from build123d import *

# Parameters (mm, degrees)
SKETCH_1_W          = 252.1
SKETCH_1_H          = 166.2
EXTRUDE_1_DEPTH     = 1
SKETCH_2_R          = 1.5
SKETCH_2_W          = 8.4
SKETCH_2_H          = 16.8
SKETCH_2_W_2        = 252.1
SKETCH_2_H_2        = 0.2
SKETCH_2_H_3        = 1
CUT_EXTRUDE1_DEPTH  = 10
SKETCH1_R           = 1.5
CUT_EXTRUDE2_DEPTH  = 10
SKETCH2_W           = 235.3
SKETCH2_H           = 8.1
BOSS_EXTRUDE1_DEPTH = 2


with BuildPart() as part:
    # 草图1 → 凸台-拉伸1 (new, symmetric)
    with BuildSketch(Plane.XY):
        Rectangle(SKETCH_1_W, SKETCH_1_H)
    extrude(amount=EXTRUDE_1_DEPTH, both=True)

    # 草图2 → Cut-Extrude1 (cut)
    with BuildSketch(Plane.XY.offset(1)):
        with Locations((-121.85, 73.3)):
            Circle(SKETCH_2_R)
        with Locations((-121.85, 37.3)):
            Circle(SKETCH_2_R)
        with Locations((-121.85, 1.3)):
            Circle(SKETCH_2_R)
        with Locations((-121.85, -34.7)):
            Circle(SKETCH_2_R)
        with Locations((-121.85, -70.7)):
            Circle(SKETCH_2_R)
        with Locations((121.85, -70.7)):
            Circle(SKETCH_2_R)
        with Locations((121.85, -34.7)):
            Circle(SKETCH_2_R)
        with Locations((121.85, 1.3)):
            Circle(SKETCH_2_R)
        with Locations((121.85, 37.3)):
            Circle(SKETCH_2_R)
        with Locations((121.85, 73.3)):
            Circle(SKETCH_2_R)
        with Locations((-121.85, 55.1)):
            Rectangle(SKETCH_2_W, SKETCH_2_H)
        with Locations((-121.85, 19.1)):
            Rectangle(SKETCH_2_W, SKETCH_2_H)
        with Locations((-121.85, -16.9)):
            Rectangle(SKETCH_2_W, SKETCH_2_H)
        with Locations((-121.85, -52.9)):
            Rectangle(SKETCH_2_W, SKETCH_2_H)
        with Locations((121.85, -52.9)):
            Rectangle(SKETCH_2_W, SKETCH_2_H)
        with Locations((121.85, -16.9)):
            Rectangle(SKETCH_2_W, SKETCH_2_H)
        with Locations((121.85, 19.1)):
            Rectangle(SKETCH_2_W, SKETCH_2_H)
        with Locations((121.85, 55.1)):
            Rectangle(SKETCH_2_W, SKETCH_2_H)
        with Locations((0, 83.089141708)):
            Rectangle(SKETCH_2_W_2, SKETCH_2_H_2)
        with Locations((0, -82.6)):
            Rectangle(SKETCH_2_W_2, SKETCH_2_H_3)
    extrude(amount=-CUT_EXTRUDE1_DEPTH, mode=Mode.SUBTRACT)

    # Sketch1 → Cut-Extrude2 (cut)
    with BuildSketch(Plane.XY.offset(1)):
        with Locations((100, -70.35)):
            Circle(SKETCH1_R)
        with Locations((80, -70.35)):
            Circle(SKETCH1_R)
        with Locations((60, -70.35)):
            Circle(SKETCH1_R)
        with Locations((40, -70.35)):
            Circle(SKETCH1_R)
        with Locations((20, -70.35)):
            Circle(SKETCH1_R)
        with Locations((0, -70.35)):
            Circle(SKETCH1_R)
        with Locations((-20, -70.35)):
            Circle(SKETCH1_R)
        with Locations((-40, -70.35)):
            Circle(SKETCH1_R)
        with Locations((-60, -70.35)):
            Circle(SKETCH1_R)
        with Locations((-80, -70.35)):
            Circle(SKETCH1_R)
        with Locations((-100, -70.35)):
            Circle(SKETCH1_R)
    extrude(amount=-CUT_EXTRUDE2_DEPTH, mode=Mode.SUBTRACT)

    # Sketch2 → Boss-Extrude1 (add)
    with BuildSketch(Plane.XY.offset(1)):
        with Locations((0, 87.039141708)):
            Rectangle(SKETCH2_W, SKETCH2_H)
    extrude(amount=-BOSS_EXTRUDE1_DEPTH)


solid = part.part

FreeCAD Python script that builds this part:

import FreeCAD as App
import Part
import Sketcher

V = App.Vector
Q = App.Units.Quantity


def add_polygon(sketch, points):
    """Adds a closed chain of lines whose ends are joined by coincident constraints."""
    first, n = sketch.GeometryCount, len(points)
    for a, b in zip(points, points[1:] + points[:1]):
        sketch.addGeometry(Part.LineSegment(App.Vector(*a, 0), App.Vector(*b, 0)), False)
    for i in range(n):
        sketch.addConstraint(Sketcher.Constraint("Coincident", first + i, 2, first + (i + 1) % n, 1))

doc = App.newDocument("Part")
body = doc.addObject("PartDesign::Body", "Body")

# Sketch on XY plane
sketch1 = doc.addObject("Sketcher::SketchObject", "Sketch")
body.addObject(sketch1)
sketch1.AttachmentSupport = (doc.XY_Plane, [""])
sketch1.MapMode = "FlatFace"
add_polygon(sketch1, [(-126.05, 83.1), (-126.05, -83.1), (126.05, -83.1), (126.05, 83.1)])  # lines 0-3
sketch1.addConstraint(Sketcher.Constraint("Vertical", 0))
sketch1.addConstraint(Sketcher.Constraint("Horizontal", 1))
sketch1.addConstraint(Sketcher.Constraint("Vertical", 2))
sketch1.addConstraint(Sketcher.Constraint("Horizontal", 3))
sketch1.addConstraint(Sketcher.Constraint("Symmetric", 0, 2, 2, 2, -1, 1))
sketch1.addConstraint(Sketcher.Constraint("DistanceX", 1, 1, 1, 2, Q("252.1 mm")))
sketch1.addConstraint(Sketcher.Constraint("DistanceY", 0, 2, 0, 1, Q("166.2 mm")))
pad1 = doc.addObject("PartDesign::Pad", "Pad")
body.addObject(pad1)
pad1.Profile = sketch1
pad1.Length = 2
pad1.Midplane = True

# Sketch on XY plane
sketch2 = doc.addObject("Sketcher::SketchObject", "Sketch001")
body.addObject(sketch2)
sketch2.AttachmentSupport = (doc.XY_Plane, [""])
sketch2.MapMode = "FlatFace"
sketch2.AttachmentOffset = App.Placement(V(0, 0, 1), App.Rotation())
sketch2.addGeometry(Part.Circle(V(-121.85, 73.3, 0), V(0, 0, 1), 1.5), False)  # 0
sketch2.addGeometry(Part.Circle(V(-121.85, 37.3, 0), V(0, 0, 1), 1.5), False)  # 1
sketch2.addGeometry(Part.Circle(V(-121.85, 1.3, 0), V(0, 0, 1), 1.5), False)  # 2
sketch2.addGeometry(Part.Circle(V(-121.85, -34.7, 0), V(0, 0, 1), 1.5), False)  # 3
sketch2.addGeometry(Part.Circle(V(-121.85, -70.7, 0), V(0, 0, 1), 1.5), False)  # 4
sketch2.addGeometry(Part.Circle(V(121.85, -70.7, 0), V(0, 0, 1), 1.5), False)  # 5
sketch2.addGeometry(Part.Circle(V(121.85, -34.7, 0), V(0, 0, 1), 1.5), False)  # 6
sketch2.addGeometry(Part.Circle(V(121.85, 1.3, 0), V(0, 0, 1), 1.5), False)  # 7
sketch2.addGeometry(Part.Circle(V(121.85, 37.3, 0), V(0, 0, 1), 1.5), False)  # 8
sketch2.addGeometry(Part.Circle(V(121.85, 73.3, 0), V(0, 0, 1), 1.5), False)  # 9
add_polygon(sketch2, [(-126.05, 63.5), (-126.05, 46.7), (-117.65, 46.7), (-117.65, 63.5)])  # lines 10-13
add_polygon(sketch2, [(-126.05, 27.5), (-126.05, 10.7), (-117.65, 10.7), (-117.65, 27.5)])  # lines 14-17
add_polygon(sketch2, [(-126.05, -8.5), (-126.05, -25.3), (-117.65, -25.3), (-117.65, -8.5)])  # lines 18-21
add_polygon(sketch2, [(-126.05, -44.5), (-126.05, -61.3), (-117.65, -61.3), (-117.65, -44.5)])  # lines 22-25
add_polygon(sketch2, [(117.65, -44.5), (117.65, -61.3), (126.05, -61.3), (126.05, -44.5)])  # lines 26-29
add_polygon(sketch2, [(117.65, -8.5), (117.65, -25.3), (126.05, -25.3), (126.05, -8.5)])  # lines 30-33
add_polygon(sketch2, [(117.65, 27.5), (117.65, 10.7), (126.05, 10.7), (126.05, 27.5)])  # lines 34-37
add_polygon(sketch2, [(117.65, 63.5), (117.65, 46.7), (126.05, 46.7), (126.05, 63.5)])  # lines 38-41
add_polygon(sketch2, [(-126.05, 83.189142), (-126.05, 82.989142), (126.05, 82.989142), (126.05, 83.189142)])  # lines 42-45
add_polygon(sketch2, [(-126.05, -82.1), (-126.05, -83.1), (126.05, -83.1), (126.05, -82.1)])  # lines 46-49
sketch2.addConstraint(Sketcher.Constraint("Vertical", 10))
sketch2.addConstraint(Sketcher.Constraint("Horizontal", 11))
sketch2.addConstraint(Sketcher.Constraint("Vertical", 12))
sketch2.addConstraint(Sketcher.Constraint("Horizontal", 13))
sketch2.addConstraint(Sketcher.Constraint("Vertical", 14))
sketch2.addConstraint(Sketcher.Constraint("Horizontal", 15))
sketch2.addConstraint(Sketcher.Constraint("Vertical", 16))
sketch2.addConstraint(Sketcher.Constraint("Horizontal", 17))
sketch2.addConstraint(Sketcher.Constraint("Vertical", 18))
sketch2.addConstraint(Sketcher.Constraint("Horizontal", 19))
sketch2.addConstraint(Sketcher.Constraint("Vertical", 20))
sketch2.addConstraint(Sketcher.Constraint("Horizontal", 21))
sketch2.addConstraint(Sketcher.Constraint("Vertical", 22))
sketch2.addConstraint(Sketcher.Constraint("Horizontal", 23))
sketch2.addConstraint(Sketcher.Constraint("Vertical", 24))
sketch2.addConstraint(Sketcher.Constraint("Horizontal", 25))
sketch2.addConstraint(Sketcher.Constraint("Vertical", 26))
sketch2.addConstraint(Sketcher.Constraint("Horizontal", 27))
sketch2.addConstraint(Sketcher.Constraint("Vertical", 28))
sketch2.addConstraint(Sketcher.Constraint("Horizontal", 29))
sketch2.addConstraint(Sketcher.Constraint("Vertical", 30))
sketch2.addConstraint(Sketcher.Constraint("Horizontal", 31))
sketch2.addConstraint(Sketcher.Constraint("Vertical", 32))
sketch2.addConstraint(Sketcher.Constraint("Horizontal", 33))
sketch2.addConstraint(Sketcher.Constraint("Vertical", 34))
sketch2.addConstraint(Sketcher.Constraint("Horizontal", 35))
sketch2.addConstraint(Sketcher.Constraint("Vertical", 36))
sketch2.addConstraint(Sketcher.Constraint("Horizontal", 37))
sketch2.addConstraint(Sketcher.Constraint("Vertical", 38))
sketch2.addConstraint(Sketcher.Constraint("Horizontal", 39))
sketch2.addConstraint(Sketcher.Constraint("Vertical", 40))
sketch2.addConstraint(Sketcher.Constraint("Horizontal", 41))
sketch2.addConstraint(Sketcher.Constraint("Vertical", 42))
sketch2.addConstraint(Sketcher.Constraint("Horizontal", 43))
sketch2.addConstraint(Sketcher.Constraint("Vertical", 44))
sketch2.addConstraint(Sketcher.Constraint("Horizontal", 45))
sketch2.addConstraint(Sketcher.Constraint("Vertical", 46))
sketch2.addConstraint(Sketcher.Constraint("Horizontal", 47))
sketch2.addConstraint(Sketcher.Constraint("Vertical", 48))
sketch2.addConstraint(Sketcher.Constraint("Horizontal", 49))
sketch2.addConstraint(Sketcher.Constraint("Equal", 0, 1))
sketch2.addConstraint(Sketcher.Constraint("Equal", 1, 2))
sketch2.addConstraint(Sketcher.Constraint("Equal", 2, 3))
sketch2.addConstraint(Sketcher.Constraint("Equal", 3, 4))
sketch2.addConstraint(Sketcher.Constraint("Equal", 4, 5))
sketch2.addConstraint(Sketcher.Constraint("Equal", 5, 6))
sketch2.addConstraint(Sketcher.Constraint("Equal", 6, 7))
sketch2.addConstraint(Sketcher.Constraint("Equal", 7, 8))
sketch2.addConstraint(Sketcher.Constraint("Equal", 8, 9))
sketch2.addConstraint(Sketcher.Constraint("Symmetric", 4, 3, 5, 3, -2))
sketch2.addConstraint(Sketcher.Constraint("Symmetric", 3, 3, 6, 3, -2))
sketch2.addConstraint(Sketcher.Constraint("Symmetric", 2, 3, 7, 3, -2))
sketch2.addConstraint(Sketcher.Constraint("Symmetric", 1, 3, 8, 3, -2))
sketch2.addConstraint(Sketcher.Constraint("Symmetric", 0, 3, 9, 3, -2))
sketch2.addConstraint(Sketcher.Constraint("Symmetric", 23, 2, 26, 2, -2))
sketch2.addConstraint(Sketcher.Constraint("Symmetric", 25, 2, 28, 2, -2))
sketch2.addConstraint(Sketcher.Constraint("Symmetric", 19, 2, 30, 2, -2))
sketch2.addConstraint(Sketcher.Constraint("Symmetric", 21, 2, 32, 2, -2))
sketch2.addConstraint(Sketcher.Constraint("Symmetric", 15, 2, 34, 2, -2))
sketch2.addConstraint(Sketcher.Constraint("Symmetric", 17, 2, 36, 2, -2))
sketch2.addConstraint(Sketcher.Constraint("Symmetric", 11, 2, 38, 2, -2))
sketch2.addConstraint(Sketcher.Constraint("Symmetric", 13, 2, 40, 2, -2))
sketch2.addConstraint(Sketcher.Constraint("Vertical", 0, 3, 1, 3))
sketch2.addConstraint(Sketcher.Constraint("Vertical", 1, 3, 2, 3))
sketch2.addConstraint(Sketcher.Constraint("Vertical", 2, 3, 3, 3))
sketch2.addConstraint(Sketcher.Constraint("Vertical", 3, 3, 4, 3))
sketch2.addConstraint(Sketcher.Constraint("Vertical", 13, 2, 14, 2))
sketch2.addConstraint(Sketcher.Constraint("Vertical", 12, 2, 15, 2))
sketch2.addConstraint(Sketcher.Constraint("Vertical", 17, 2, 18, 2))
sketch2.addConstraint(Sketcher.Constraint("Vertical", 16, 2, 19, 2))
sketch2.addConstraint(Sketcher.Constraint("Vertical", 21, 2, 22, 2))
sketch2.addConstraint(Sketcher.Constraint("Vertical", 20, 2, 23, 2))
sketch2.addConstraint(Sketcher.Constraint("Vertical", 25, 2, 42, 2))
sketch2.addConstraint(Sketcher.Constraint("Vertical", 40, 2, 43, 2))
sketch2.addConstraint(Sketcher.Constraint("Vertical", 45, 2, 46, 2))
sketch2.addConstraint(Sketcher.Constraint("Vertical", 44, 2, 47, 2))
sketch2.addConstraint(Sketcher.Constraint("Equal", 12, 14))
sketch2.addConstraint(Sketcher.Constraint("Equal", 16, 18))
sketch2.addConstraint(Sketcher.Constraint("Equal", 20, 22))
sketch2.addConstraint(Sketcher.Constraint("Diameter", 0, Q("3 mm")))
sketch2.addConstraint(Sketcher.Constraint("DistanceY", 46, 2, 46, 1, Q("1 mm")))
sketch2.addConstraint(Sketcher.Constraint("DistanceX", 11, 1, 11, 2, Q("8.4 mm")))
sketch2.addConstraint(Sketcher.Constraint("DistanceX", 43, 1, 43, 2, Q("252.1 mm")))
sketch2.addConstraint(Sketcher.Constraint("DistanceY", 10, 2, 10, 1, Q("16.8 mm")))
sketch2.addConstraint(Sketcher.Constraint("DistanceY", 42, 2, 42, 1, Q("0.2 mm")))
sketch2.addConstraint(Sketcher.Constraint("DistanceY", 1, 3, 0, 3, Q("36 mm")))
sketch2.addConstraint(Sketcher.Constraint("DistanceY", 2, 3, 1, 3, Q("36 mm")))
sketch2.addConstraint(Sketcher.Constraint("DistanceY", 3, 3, 2, 3, Q("36 mm")))
sketch2.addConstraint(Sketcher.Constraint("DistanceY", 4, 3, 3, 3, Q("36 mm")))
sketch2.addConstraint(Sketcher.Constraint("DistanceY", 14, 2, 10, 2, Q("36 mm")))
sketch2.addConstraint(Sketcher.Constraint("DistanceY", 18, 2, 14, 2, Q("36 mm")))
sketch2.addConstraint(Sketcher.Constraint("DistanceY", 22, 2, 18, 2, Q("36 mm")))
sketch2.addConstraint(Sketcher.Constraint("DistanceY", -1, 1, 0, 3, Q("73.3 mm")))
sketch2.addConstraint(Sketcher.Constraint("DistanceY", -1, 1, 10, 2, Q("46.7 mm")))
sketch2.addConstraint(Sketcher.Constraint("DistanceY", 46, 2, -1, 1, Q("83.1 mm")))
sketch2.addConstraint(Sketcher.Constraint("DistanceX", 4, 3, 5, 3, Q("243.7 mm")))
sketch2.addConstraint(Sketcher.Constraint("DistanceY", -1, 1, 42, 2, Q("82.989142 mm")))
pocket1 = doc.addObject("PartDesign::Pocket", "Pocket")
body.addObject(pocket1)
pocket1.Profile = sketch2
pocket1.Length = 10

# Sketch on XY plane
sketch3 = doc.addObject("Sketcher::SketchObject", "Sketch002")
body.addObject(sketch3)
sketch3.AttachmentSupport = (doc.XY_Plane, [""])
sketch3.MapMode = "FlatFace"
sketch3.AttachmentOffset = App.Placement(V(0, 0, 1), App.Rotation())
sketch3.addGeometry(Part.Circle(V(100, -70.35, 0), V(0, 0, 1), 1.5), False)
sketch3.addGeometry(Part.Circle(V(80, -70.35, 0), V(0, 0, 1), 1.5), False)
sketch3.addGeometry(Part.Circle(V(60, -70.35, 0), V(0, 0, 1), 1.5), False)
sketch3.addGeometry(Part.Circle(V(40, -70.35, 0), V(0, 0, 1), 1.5), False)
sketch3.addGeometry(Part.Circle(V(20, -70.35, 0), V(0, 0, 1), 1.5), False)
sketch3.addGeometry(Part.Circle(V(0, -70.35, 0), V(0, 0, 1), 1.5), False)
sketch3.addGeometry(Part.Circle(V(-20, -70.35, 0), V(0, 0, 1), 1.5), False)
sketch3.addGeometry(Part.Circle(V(-40, -70.35, 0), V(0, 0, 1), 1.5), False)
sketch3.addGeometry(Part.Circle(V(-60, -70.35, 0), V(0, 0, 1), 1.5), False)
sketch3.addGeometry(Part.Circle(V(-80, -70.35, 0), V(0, 0, 1), 1.5), False)
sketch3.addGeometry(Part.Circle(V(-100, -70.35, 0), V(0, 0, 1), 1.5), False)
sketch3.addConstraint(Sketcher.Constraint("Equal", 0, 1))
sketch3.addConstraint(Sketcher.Constraint("Equal", 1, 2))
sketch3.addConstraint(Sketcher.Constraint("Equal", 2, 3))
sketch3.addConstraint(Sketcher.Constraint("Equal", 3, 4))
sketch3.addConstraint(Sketcher.Constraint("Equal", 4, 5))
sketch3.addConstraint(Sketcher.Constraint("Equal", 5, 6))
sketch3.addConstraint(Sketcher.Constraint("Equal", 6, 7))
sketch3.addConstraint(Sketcher.Constraint("Equal", 7, 8))
sketch3.addConstraint(Sketcher.Constraint("Equal", 8, 9))
sketch3.addConstraint(Sketcher.Constraint("Equal", 9, 10))
sketch3.addConstraint(Sketcher.Constraint("Symmetric", 4, 3, 6, 3, -2))
sketch3.addConstraint(Sketcher.Constraint("Symmetric", 3, 3, 7, 3, -2))
sketch3.addConstraint(Sketcher.Constraint("Symmetric", 2, 3, 8, 3, -2))
sketch3.addConstraint(Sketcher.Constraint("Symmetric", 1, 3, 9, 3, -2))
sketch3.addConstraint(Sketcher.Constraint("Symmetric", 0, 3, 10, 3, -2))
sketch3.addConstraint(Sketcher.Constraint("PointOnObject", 5, 3, -2))
sketch3.addConstraint(Sketcher.Constraint("Horizontal", 0, 3, 1, 3))
sketch3.addConstraint(Sketcher.Constraint("Horizontal", 1, 3, 2, 3))
sketch3.addConstraint(Sketcher.Constraint("Horizontal", 2, 3, 3, 3))
sketch3.addConstraint(Sketcher.Constraint("Horizontal", 3, 3, 4, 3))
sketch3.addConstraint(Sketcher.Constraint("Horizontal", 4, 3, 5, 3))
sketch3.addConstraint(Sketcher.Constraint("Diameter", 0, Q("3 mm")))
sketch3.addConstraint(Sketcher.Constraint("DistanceX", -1, 1, 0, 3, Q("100 mm")))
sketch3.addConstraint(Sketcher.Constraint("DistanceX", -1, 1, 1, 3, Q("80 mm")))
sketch3.addConstraint(Sketcher.Constraint("DistanceX", -1, 1, 2, 3, Q("60 mm")))
sketch3.addConstraint(Sketcher.Constraint("DistanceX", -1, 1, 3, 3, Q("40 mm")))
sketch3.addConstraint(Sketcher.Constraint("DistanceX", -1, 1, 4, 3, Q("20 mm")))
sketch3.addConstraint(Sketcher.Constraint("DistanceY", 0, 3, -1, 1, Q("70.35 mm")))
pocket2 = doc.addObject("PartDesign::Pocket", "Pocket001")
body.addObject(pocket2)
pocket2.Profile = sketch3
pocket2.Length = 10

# Sketch on XY plane
sketch4 = doc.addObject("Sketcher::SketchObject", "Sketch003")
body.addObject(sketch4)
sketch4.AttachmentSupport = (doc.XY_Plane, [""])
sketch4.MapMode = "FlatFace"
sketch4.AttachmentOffset = App.Placement(V(0, 0, 1), App.Rotation())
add_polygon(sketch4, [(-117.65, 91.089142), (-117.65, 82.989142), (117.65, 82.989142), (117.65, 91.089142)])  # lines 0-3
sketch4.addConstraint(Sketcher.Constraint("Vertical", 0))
sketch4.addConstraint(Sketcher.Constraint("Horizontal", 1))
sketch4.addConstraint(Sketcher.Constraint("Vertical", 2))
sketch4.addConstraint(Sketcher.Constraint("Horizontal", 3))
sketch4.addConstraint(Sketcher.Constraint("DistanceX", 1, 1, 1, 2, Q("235.3 mm")))
sketch4.addConstraint(Sketcher.Constraint("DistanceY", 0, 2, 0, 1, Q("8.1 mm")))
sketch4.addConstraint(Sketcher.Constraint("DistanceX", 0, 2, -1, 1, Q("117.65 mm")))
sketch4.addConstraint(Sketcher.Constraint("DistanceY", -1, 1, 0, 2, Q("82.989142 mm")))
pad2 = doc.addObject("PartDesign::Pad", "Pad001")
body.addObject(pad2)
pad2.Profile = sketch4
pad2.Length = 2
pad2.Reversed = True

doc.recompute()
